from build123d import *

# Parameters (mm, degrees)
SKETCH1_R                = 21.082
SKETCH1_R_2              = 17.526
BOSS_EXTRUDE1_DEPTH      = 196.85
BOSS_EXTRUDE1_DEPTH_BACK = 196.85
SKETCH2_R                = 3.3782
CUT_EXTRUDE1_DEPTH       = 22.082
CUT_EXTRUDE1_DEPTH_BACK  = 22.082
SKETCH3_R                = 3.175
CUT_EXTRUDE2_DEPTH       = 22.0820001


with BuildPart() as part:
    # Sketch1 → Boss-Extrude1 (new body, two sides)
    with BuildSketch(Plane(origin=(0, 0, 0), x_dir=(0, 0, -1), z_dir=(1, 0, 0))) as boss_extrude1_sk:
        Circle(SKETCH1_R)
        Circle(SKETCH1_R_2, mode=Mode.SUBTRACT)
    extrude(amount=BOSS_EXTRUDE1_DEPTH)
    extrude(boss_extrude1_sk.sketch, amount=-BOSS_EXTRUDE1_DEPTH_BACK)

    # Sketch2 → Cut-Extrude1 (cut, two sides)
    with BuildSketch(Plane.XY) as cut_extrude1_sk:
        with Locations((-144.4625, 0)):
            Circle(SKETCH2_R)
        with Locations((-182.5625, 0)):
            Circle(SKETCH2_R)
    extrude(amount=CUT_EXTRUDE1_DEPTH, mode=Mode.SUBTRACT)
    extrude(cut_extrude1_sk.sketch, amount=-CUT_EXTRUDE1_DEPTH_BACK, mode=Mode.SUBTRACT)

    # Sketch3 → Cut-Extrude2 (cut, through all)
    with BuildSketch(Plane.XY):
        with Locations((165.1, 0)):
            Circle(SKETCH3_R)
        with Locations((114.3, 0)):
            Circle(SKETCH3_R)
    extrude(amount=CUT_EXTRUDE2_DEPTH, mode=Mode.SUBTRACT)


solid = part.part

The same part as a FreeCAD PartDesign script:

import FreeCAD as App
import Part
import Sketcher
from FreeCAD import Vector
Q = App.Units.Quantity

doc = App.newDocument("Part")
body = doc.addObject("PartDesign::Body", "Body")

# Sketch on YZ plane
sketch1 = body.newObject("Sketcher::SketchObject", "Sketch")
sketch1.AttachmentSupport = (doc.getObject("YZ_Plane"), [""])
sketch1.MapMode = "FlatFace"
sketch1.addGeometry([
    Part.Circle(Vector(0, 0, 0), Vector(0, 0, 1), 21),
    Part.Circle(Vector(0, 0, 0), Vector(0, 0, 1), 18),
], False)
sketch1.addConstraint([
    Sketcher.Constraint("Coincident", 0, 3, -1, 1),
    Sketcher.Constraint("Coincident", 1, 3, -1, 1),
    Sketcher.Constraint("Diameter", 0, Q("1.66 in")),
    Sketcher.Constraint("Diameter", 1, Q("1.38 in")),
])
pad1 = body.newObject("PartDesign::Pad", "Pad")
pad1.Profile = sketch1
pad1.Type = "TwoLengths"
pad1.Length = Q("7.75 in")
pad1.Length2 = Q("7.75 in")

# Sketch on XY plane
sketch2 = body.newObject("Sketcher::SketchObject", "Sketch001")
sketch2.AttachmentSupport = (doc.getObject("XY_Plane"), [""])
sketch2.MapMode = "FlatFace"
sketch2.addGeometry([
    Part.Circle(Vector(-144.5, 0, 0), Vector(0, 0, 1), 3.4),
    Part.Circle(Vector(-182.6, 0, 0), Vector(0, 0, 1), 3.4),
], False)
sketch2.addConstraint([
    Sketcher.Constraint("Equal", 0, 1),
    Sketcher.Constraint("PointOnObject", 0, 3, -1),
    Sketcher.Constraint("PointOnObject", 1, 3, -1),
    Sketcher.Constraint("Diameter", 0, Q("0.266 in")),
    Sketcher.Constraint("DistanceX", 1, 3, 0, 3, Q("1.5 in")),
    Sketcher.Constraint("DistanceX", 0, 3, -1, 1, Q("5.6875 in")),
])
pocket1 = body.newObject("PartDesign::Pocket", "Pocket")
pocket1.Profile = sketch2
pocket1.Type = "ThroughAll"
pocket1.Midplane = True

# Sketch on XY plane
sketch3 = body.newObject("Sketcher::SketchObject", "Sketch002")
sketch3.AttachmentSupport = (doc.getObject("XY_Plane"), [""])
sketch3.MapMode = "FlatFace"
sketch3.addGeometry([
    Part.Circle(Vector(165.1, 0, 0), Vector(0, 0, 1), 3.2),
    Part.Circle(Vector(114.3, 0, 0), Vector(0, 0, 1), 3.2),
], False)
sketch3.addConstraint([
    Sketcher.Constraint("Equal", 0, 1),
    Sketcher.Constraint("PointOnObject", 0, 3, -1),
    Sketcher.Constraint("PointOnObject", 1, 3, -1),
    Sketcher.Constraint("Diameter", 0, Q("0.25 in")),
    Sketcher.Constraint("DistanceX", 1, 3, 0, 3, Q("2 in")),
    Sketcher.Constraint("DistanceX", -1, 1, 0, 3, Q("6.5 in")),
])
pocket2 = body.newObject("PartDesign::Pocket", "Pocket001")
pocket2.Profile = sketch3
pocket2.Type = "ThroughAll"
pocket2.Reversed = True

doc.recompute()
